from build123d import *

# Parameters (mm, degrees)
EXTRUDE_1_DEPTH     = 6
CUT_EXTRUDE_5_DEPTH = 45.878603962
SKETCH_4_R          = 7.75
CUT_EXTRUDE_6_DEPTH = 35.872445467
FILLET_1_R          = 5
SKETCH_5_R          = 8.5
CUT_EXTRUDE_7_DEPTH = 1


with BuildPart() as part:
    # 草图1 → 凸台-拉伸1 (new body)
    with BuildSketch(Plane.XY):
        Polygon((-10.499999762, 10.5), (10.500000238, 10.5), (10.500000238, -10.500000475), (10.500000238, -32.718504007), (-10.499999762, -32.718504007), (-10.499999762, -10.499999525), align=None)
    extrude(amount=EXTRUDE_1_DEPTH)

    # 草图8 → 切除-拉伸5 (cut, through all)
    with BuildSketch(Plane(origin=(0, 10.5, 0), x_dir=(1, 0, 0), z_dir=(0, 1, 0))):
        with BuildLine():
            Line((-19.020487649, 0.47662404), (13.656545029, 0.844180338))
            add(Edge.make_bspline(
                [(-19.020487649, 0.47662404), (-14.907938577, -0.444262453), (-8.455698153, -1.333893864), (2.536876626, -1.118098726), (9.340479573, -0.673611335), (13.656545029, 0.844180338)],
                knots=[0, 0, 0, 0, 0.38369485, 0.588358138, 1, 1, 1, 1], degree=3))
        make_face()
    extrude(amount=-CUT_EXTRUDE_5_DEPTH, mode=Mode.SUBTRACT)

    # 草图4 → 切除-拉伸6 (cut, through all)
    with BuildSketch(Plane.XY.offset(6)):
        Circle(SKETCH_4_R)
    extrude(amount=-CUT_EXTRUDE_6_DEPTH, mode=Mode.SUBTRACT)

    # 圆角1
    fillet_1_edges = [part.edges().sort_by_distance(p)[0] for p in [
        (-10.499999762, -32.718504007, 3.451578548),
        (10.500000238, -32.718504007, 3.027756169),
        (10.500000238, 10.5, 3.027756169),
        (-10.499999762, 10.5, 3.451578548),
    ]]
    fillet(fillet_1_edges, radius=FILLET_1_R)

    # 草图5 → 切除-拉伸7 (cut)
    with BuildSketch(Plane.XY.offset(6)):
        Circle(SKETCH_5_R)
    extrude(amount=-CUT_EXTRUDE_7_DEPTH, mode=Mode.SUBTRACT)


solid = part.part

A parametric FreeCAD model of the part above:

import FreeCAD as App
import Part
import Sketcher


def edges_at(feature, points):
    """Names of the edges that pass closest to the given points."""
    edges = feature.Shape.Edges
    near = lambda p: min(range(len(edges)), key=lambda i: edges[i].distToShape(Part.Vertex(*p))[0])
    return sorted({f"Edge{near(p) + 1}" for p in points})

doc = App.newDocument("Part")
params = doc.addObject("Spreadsheet::Sheet", "Params")
for row, (alias, value) in enumerate([
    ("sketch1_width", "21 mm"),
    ("pad1_length", "6 mm"),
    ("sketch3_diameter", "15.5 mm"),
    ("fillet_radius", "5 mm"),
    ("sketch4_diameter", "17 mm"),
    ("pocket3_length", "1 mm"),
], start=1):
    params.set(f"A{row}", alias)
    params.set(f"B{row}", "=" + value)
    params.setAlias(f"B{row}", alias)

body = doc.addObject("PartDesign::Body", "Body")

# Sketch on XY plane
sketch1 = body.newObject("Sketcher::SketchObject", "Sketch")
sketch1.AttachmentSupport = (doc.getObject("XY_Plane"), [""])
sketch1.MapMode = "FlatFace"
sketch1.addGeometry(Part.LineSegment(App.Vector(11, 10, 0), App.Vector(-10, 10, 0)), False)
sketch1.addGeometry(Part.LineSegment(App.Vector(-10, 10, 0), App.Vector(-10, -33, 0)), False)
sketch1.addGeometry(Part.LineSegment(App.Vector(-10, -33, 0), App.Vector(11, -33, 0)), False)
sketch1.addGeometry(Part.LineSegment(App.Vector(11, -33, 0), App.Vector(11, 10, 0)), False)
sketch1.addConstraint(Sketcher.Constraint("Coincident", 0, 2, 1, 1))
sketch1.addConstraint(Sketcher.Constraint("Coincident", 1, 2, 2, 1))
sketch1.addConstraint(Sketcher.Constraint("Coincident", 2, 2, 3, 1))
sketch1.addConstraint(Sketcher.Constraint("Coincident", 3, 2, 0, 1))
sketch1.addConstraint(Sketcher.Constraint("Horizontal", 0))
sketch1.addConstraint(Sketcher.Constraint("Vertical", 1))
sketch1.addConstraint(Sketcher.Constraint("Horizontal", 2))
sketch1.addConstraint(Sketcher.Constraint("Vertical", 3))
sketch1.addConstraint(Sketcher.Constraint("DistanceX", 0, 2, 0, 1, 21.0))
sketch1.addConstraint(Sketcher.Constraint("DistanceX", 0, 2, -1, 1, 10.5))
sketch1.addConstraint(Sketcher.Constraint("DistanceY", -1, 1, 0, 2, 10.5))
sketch1.addConstraint(Sketcher.Constraint("DistanceY", 1, 2, 1, 1, 43.218504))
sketch1.setExpression("Constraints[8]", "Params.sketch1_width")
pad1 = body.newObject("PartDesign::Pad", "Pad")
pad1.Profile = sketch1
pad1.setExpression("Length", "Params.pad1_length")

# Sketch on XZ plane
sketch2 = body.newObject("Sketcher::SketchObject", "Sketch001")
sketch2.AttachmentSupport = (doc.getObject("XZ_Plane"), [""])
sketch2.MapMode = "FlatFace"
sketch2.AttachmentOffset = App.Placement(App.Vector(0, 0, -10.5), App.Rotation())
sketch2.addGeometry(Part.LineSegment(App.Vector(13.656545, -0.84418, 0), App.Vector(-19.020488, -0.476624, 0)), False)
sketch2.addGeometry(Part.BSplineCurve([App.Vector(-19.020488, -0.476624, 0), App.Vector(-14.907939, 0.444262, 0), App.Vector(-8.455698, 1.333894, 0), App.Vector(2.536877, 1.118099, 0), App.Vector(9.34048, 0.673611, 0), App.Vector(13.656545, -0.84418, 0)], [4, 1, 1, 4], [0, 0.38369485, 0.588358138, 1], False, 3, [1, 1, 1, 1, 1, 1], False), False)
sketch2.addConstraint(Sketcher.Constraint("Block", 1))
sketch2.addConstraint(Sketcher.Constraint("Coincident", 0, 1, 1, 2))
sketch2.addConstraint(Sketcher.Constraint("Coincident", 1, 1, 0, 2))
pocket1 = body.newObject("PartDesign::Pocket", "Pocket")
pocket1.Profile = sketch2
pocket1.Type = "ThroughAll"
pocket1.Reversed = True

# Sketch on XY plane
sketch3 = body.newObject("Sketcher::SketchObject", "Sketch002")
sketch3.AttachmentSupport = (doc.getObject("XY_Plane"), [""])
sketch3.MapMode = "FlatFace"
sketch3.AttachmentOffset = App.Placement(App.Vector(0, 0, 6), App.Rotation())
sketch3.addGeometry(Part.Circle(App.Vector(0, 0, 0), App.Vector(0, 0, 1), 8), False)
sketch3.addConstraint(Sketcher.Constraint("Coincident", 0, 3, -1, 1))
sketch3.addConstraint(Sketcher.Constraint("Diameter", 0, 15.5))
sketch3.setExpression("Constraints[1]", "Params.sketch3_diameter")
pocket2 = body.newObject("PartDesign::Pocket", "Pocket001")
pocket2.Profile = sketch3
pocket2.Type = "ThroughAll"
doc.recompute()

fillet = body.newObject("PartDesign::Fillet", "Fillet")
fillet.Base = (pocket2, edges_at(pocket2, [
    (-10.5, -32.719, 3.452),
    (10.5, -32.719, 3.028),
    (10.5, 10.5, 3.028),
    (-10.5, 10.5, 3.452),
]))
fillet.setExpression("Radius", "Params.fillet_radius")

# Sketch on XY plane
sketch4 = body.newObject("Sketcher::SketchObject", "Sketch003")
sketch4.AttachmentSupport = (doc.getObject("XY_Plane"), [""])
sketch4.MapMode = "FlatFace"
sketch4.AttachmentOffset = App.Placement(App.Vector(0, 0, 6), App.Rotation())
sketch4.addGeometry(Part.Circle(App.Vector(0, 0, 0), App.Vector(0, 0, 1), 8), False)
sketch4.addConstraint(Sketcher.Constraint("Coincident", 0, 3, -1, 1))
sketch4.addConstraint(Sketcher.Constraint("Diameter", 0, 17.0))
sketch4.setExpression("Constraints[1]", "Params.sketch4_diameter")
pocket3 = body.newObject("PartDesign::Pocket", "Pocket002")
pocket3.Profile = sketch4
pocket3.setExpression("Length", "Params.pocket3_length")

doc.recompute()
